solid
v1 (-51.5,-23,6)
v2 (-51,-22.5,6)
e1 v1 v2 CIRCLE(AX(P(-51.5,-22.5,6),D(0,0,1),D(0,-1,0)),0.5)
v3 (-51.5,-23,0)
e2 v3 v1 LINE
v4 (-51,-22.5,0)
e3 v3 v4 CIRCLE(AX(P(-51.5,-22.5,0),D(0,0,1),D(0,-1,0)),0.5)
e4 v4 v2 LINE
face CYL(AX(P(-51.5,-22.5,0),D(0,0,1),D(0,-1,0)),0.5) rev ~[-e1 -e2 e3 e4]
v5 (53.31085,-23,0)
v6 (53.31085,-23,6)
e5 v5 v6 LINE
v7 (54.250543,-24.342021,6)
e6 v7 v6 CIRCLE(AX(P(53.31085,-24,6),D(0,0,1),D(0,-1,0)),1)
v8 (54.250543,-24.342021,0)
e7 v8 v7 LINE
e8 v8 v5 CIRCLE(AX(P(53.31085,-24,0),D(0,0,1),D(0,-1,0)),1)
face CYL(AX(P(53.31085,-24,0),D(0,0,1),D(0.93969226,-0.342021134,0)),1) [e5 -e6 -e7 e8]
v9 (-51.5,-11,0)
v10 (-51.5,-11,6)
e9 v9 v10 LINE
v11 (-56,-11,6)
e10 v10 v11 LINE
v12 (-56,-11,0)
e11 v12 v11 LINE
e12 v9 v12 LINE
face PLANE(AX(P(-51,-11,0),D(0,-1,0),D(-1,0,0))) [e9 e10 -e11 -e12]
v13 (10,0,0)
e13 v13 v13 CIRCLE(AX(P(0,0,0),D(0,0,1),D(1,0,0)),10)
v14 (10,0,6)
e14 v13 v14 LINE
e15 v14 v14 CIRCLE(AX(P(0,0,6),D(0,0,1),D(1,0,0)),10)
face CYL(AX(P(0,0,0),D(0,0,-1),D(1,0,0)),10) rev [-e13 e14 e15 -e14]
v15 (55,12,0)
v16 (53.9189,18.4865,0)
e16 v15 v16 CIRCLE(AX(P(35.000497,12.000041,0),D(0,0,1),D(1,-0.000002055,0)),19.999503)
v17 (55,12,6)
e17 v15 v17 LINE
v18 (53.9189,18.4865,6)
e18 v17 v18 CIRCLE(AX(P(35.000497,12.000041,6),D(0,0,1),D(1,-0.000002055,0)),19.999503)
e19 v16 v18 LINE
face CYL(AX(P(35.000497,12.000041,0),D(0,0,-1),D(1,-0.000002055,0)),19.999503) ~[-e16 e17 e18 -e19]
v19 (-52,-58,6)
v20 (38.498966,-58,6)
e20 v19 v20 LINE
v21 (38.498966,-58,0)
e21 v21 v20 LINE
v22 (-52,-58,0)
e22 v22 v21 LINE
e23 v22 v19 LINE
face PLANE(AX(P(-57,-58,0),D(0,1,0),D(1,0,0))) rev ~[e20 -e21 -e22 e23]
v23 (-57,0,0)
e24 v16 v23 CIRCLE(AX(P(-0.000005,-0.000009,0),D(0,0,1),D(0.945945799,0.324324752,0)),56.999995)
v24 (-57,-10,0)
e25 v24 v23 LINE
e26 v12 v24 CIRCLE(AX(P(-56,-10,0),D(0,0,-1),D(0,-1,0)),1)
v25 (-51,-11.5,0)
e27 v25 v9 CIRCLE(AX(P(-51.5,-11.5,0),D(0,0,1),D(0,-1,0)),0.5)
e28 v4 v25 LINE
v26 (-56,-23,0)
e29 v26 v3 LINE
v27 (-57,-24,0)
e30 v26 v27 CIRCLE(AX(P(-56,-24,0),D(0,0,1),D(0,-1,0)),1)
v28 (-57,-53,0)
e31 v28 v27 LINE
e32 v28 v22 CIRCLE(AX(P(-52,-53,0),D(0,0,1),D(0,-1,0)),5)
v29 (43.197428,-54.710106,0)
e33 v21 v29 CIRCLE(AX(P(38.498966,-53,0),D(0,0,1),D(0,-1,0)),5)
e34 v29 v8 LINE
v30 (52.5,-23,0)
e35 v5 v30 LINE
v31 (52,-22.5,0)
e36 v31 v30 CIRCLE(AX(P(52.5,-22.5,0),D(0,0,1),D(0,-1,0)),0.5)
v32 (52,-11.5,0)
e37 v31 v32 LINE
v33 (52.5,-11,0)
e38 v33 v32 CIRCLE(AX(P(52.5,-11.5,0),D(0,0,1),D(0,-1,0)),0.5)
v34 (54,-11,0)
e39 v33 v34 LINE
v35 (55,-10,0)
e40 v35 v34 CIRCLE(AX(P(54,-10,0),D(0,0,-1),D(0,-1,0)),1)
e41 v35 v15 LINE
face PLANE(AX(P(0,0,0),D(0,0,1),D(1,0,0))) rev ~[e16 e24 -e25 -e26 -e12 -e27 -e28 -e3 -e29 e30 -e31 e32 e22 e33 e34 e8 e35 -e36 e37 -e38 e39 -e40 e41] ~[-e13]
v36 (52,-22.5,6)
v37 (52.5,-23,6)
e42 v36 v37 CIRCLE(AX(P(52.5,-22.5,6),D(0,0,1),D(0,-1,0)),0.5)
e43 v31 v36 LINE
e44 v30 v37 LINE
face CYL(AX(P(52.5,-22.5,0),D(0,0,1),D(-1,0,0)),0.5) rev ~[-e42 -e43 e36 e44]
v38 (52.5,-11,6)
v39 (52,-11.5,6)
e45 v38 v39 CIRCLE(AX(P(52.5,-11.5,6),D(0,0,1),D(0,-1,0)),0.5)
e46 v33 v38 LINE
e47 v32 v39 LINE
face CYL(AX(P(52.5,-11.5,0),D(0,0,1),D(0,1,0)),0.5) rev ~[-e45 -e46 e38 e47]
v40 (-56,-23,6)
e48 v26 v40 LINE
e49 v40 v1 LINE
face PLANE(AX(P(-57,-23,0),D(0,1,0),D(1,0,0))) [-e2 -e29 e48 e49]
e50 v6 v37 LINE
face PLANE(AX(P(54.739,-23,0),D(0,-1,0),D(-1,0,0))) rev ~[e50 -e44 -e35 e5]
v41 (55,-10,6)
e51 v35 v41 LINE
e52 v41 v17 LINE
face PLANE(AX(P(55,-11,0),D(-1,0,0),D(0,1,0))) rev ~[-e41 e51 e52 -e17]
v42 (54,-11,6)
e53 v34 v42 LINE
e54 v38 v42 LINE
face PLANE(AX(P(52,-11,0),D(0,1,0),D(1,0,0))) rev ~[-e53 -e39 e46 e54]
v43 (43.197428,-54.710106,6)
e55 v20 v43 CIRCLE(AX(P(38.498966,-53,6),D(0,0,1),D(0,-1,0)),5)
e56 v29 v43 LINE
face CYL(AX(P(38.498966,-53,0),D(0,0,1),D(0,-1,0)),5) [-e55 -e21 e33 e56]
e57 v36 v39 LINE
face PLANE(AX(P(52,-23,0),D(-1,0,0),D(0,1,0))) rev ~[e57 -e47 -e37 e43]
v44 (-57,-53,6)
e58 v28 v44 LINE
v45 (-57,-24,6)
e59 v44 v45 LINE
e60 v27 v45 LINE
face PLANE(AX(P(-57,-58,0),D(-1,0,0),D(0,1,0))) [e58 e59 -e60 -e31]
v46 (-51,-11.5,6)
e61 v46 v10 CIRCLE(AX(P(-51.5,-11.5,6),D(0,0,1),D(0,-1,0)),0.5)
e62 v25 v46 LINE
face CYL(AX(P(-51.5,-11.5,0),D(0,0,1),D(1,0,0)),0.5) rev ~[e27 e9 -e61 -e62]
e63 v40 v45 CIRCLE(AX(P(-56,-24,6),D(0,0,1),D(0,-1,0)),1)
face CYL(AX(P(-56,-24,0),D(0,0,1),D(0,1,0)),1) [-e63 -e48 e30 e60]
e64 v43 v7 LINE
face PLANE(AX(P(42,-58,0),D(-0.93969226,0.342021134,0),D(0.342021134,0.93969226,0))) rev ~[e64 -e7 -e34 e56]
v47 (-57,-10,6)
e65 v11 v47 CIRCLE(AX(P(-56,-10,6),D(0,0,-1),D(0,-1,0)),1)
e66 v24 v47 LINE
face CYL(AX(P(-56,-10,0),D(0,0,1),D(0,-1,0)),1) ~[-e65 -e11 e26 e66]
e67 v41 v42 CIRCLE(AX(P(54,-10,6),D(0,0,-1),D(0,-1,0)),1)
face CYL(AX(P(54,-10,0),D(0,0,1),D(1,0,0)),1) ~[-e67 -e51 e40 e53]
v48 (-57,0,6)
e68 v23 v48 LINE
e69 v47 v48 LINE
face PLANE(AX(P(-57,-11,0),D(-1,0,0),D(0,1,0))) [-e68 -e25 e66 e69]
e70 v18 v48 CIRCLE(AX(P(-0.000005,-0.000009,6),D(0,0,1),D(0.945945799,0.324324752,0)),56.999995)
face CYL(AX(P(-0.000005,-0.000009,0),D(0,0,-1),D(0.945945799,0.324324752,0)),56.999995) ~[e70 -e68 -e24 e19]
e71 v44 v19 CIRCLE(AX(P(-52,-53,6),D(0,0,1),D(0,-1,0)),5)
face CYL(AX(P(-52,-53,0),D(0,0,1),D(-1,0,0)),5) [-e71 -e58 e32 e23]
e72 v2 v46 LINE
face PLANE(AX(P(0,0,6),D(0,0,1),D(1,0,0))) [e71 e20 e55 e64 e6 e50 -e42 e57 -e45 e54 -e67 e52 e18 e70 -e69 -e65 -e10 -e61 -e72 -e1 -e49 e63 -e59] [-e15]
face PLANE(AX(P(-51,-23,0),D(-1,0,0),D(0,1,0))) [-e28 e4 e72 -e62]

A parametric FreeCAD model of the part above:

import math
import FreeCAD as App
import Part
import Sketcher
Q = App.Units.Quantity


def edges_at(feature, points):
    """Names of the edges that pass closest to the given points."""
    edges = feature.Shape.Edges
    near = lambda p: min(range(len(edges)), key=lambda i: edges[i].distToShape(Part.Vertex(*p))[0])
    return sorted({f"Edge{near(p) + 1}" for p in points})

doc = App.newDocument("Part")
body = doc.addObject("PartDesign::Body", "Body")

sketch1 = body.newObject("Sketcher::SketchObject", "Sketch")
sketch1.AttachmentSupport = (doc.getObject("XY_Plane"), [""])
sketch1.MapMode = "FlatFace"
sketch1.addGeometry([
    Part.LineSegment(App.Vector(-57, -23, 0), App.Vector(-57, -58, 0)),
    Part.LineSegment(App.Vector(-57, -58, 0), App.Vector(42, -58, 0)),
    Part.LineSegment(App.Vector(42, -58, 0), App.Vector(54.7, -23, 0)),
    Part.LineSegment(App.Vector(54.7, -23, 0), App.Vector(52, -23, 0)),
    Part.LineSegment(App.Vector(52, -23, 0), App.Vector(52, -11, 0)),
    Part.LineSegment(App.Vector(52, -11, 0), App.Vector(55, -11, 0)),
    Part.LineSegment(App.Vector(55, -11, 0), App.Vector(55, 12, 0)),
    Part.ArcOfCircle(Part.Circle(App.Vector(35, 12, 0), App.Vector(0, 0, 1), 20), math.radians(0), math.radians(18.92)),
    Part.ArcOfCircle(Part.Circle(App.Vector(0, 0, 0), App.Vector(0, 0, 1), 57), math.radians(19), math.radians(180)),
    Part.LineSegment(App.Vector(-57, 0, 0), App.Vector(-57, -11, 0)),
    Part.LineSegment(App.Vector(-57, -11, 0), App.Vector(-51, -11, 0)),
    Part.LineSegment(App.Vector(-51, -11, 0), App.Vector(-51, -23, 0)),
    Part.LineSegment(App.Vector(-51, -23, 0), App.Vector(-57, -23, 0)),
    Part.Circle(App.Vector(0, 0, 0), App.Vector(0, 0, 1), 10),
], False)
sketch1.addConstraint([
    Sketcher.Constraint("Coincident", 0, 2, 1, 1),
    Sketcher.Constraint("Coincident", 1, 2, 2, 1),
    Sketcher.Constraint("Coincident", 2, 2, 3, 1),
    Sketcher.Constraint("Coincident", 3, 2, 4, 1),
    Sketcher.Constraint("Coincident", 4, 2, 5, 1),
    Sketcher.Constraint("Coincident", 5, 2, 6, 1),
    Sketcher.Constraint("Tangent", 6, 2, 7, 1),
    Sketcher.Constraint("Tangent", 7, 2, 8, 1),
    Sketcher.Constraint("Tangent", 8, 2, 9, 1),
    Sketcher.Constraint("Coincident", 9, 2, 10, 1),
    Sketcher.Constraint("Coincident", 10, 2, 11, 1),
    Sketcher.Constraint("Coincident", 11, 2, 12, 1),
    Sketcher.Constraint("Coincident", 12, 2, 0, 1),
    Sketcher.Constraint("Vertical", 0),
    Sketcher.Constraint("Horizontal", 1),
    Sketcher.Constraint("Horizontal", 3),
    Sketcher.Constraint("Vertical", 4),
    Sketcher.Constraint("Horizontal", 5),
    Sketcher.Constraint("Vertical", 6),
    Sketcher.Constraint("Vertical", 9),
    Sketcher.Constraint("Horizontal", 10),
    Sketcher.Constraint("Vertical", 11),
    Sketcher.Constraint("Horizontal", 12),
    Sketcher.Constraint("Coincident", 8, 3, -1, 1),
    Sketcher.Constraint("Coincident", 13, 3, -1, 1),
    Sketcher.Constraint("Horizontal", 5, 2, 9, 2),
    Sketcher.Constraint("Horizontal", 3, 2, 11, 2),
    Sketcher.Constraint("Vertical", 0, 2, 8, 2),
    Sketcher.Constraint("Diameter", 13, 20.0),
    Sketcher.Constraint("Radius", 7, 20.0),
    Sketcher.Constraint("Radius", 8, 57.0),
    Sketcher.Constraint("DistanceX", 1, 1, 1, 2, 99.0),
    Sketcher.Constraint("DistanceX", 5, 1, 5, 2, 3.0),
    Sketcher.Constraint("DistanceX", 10, 1, 10, 2, 6.0),
    Sketcher.Constraint("DistanceY", 4, 1, 4, 2, 12.0),
    Sketcher.Constraint("DistanceY", -1, 1, 7, 3, 12.0),
    Sketcher.Constraint("DistanceY", 0, 2, -1, 1, 58.0),
    Sketcher.Constraint("DistanceY", 1, 2, 4, 2, 47.0),
    Sketcher.Constraint("Angle", 2, Q("70 deg")),
])
pad1 = body.newObject("PartDesign::Pad", "Pad")
pad1.Profile = sketch1
pad1.Length = 6
doc.recompute()

fillet = body.newObject("PartDesign::Fillet", "Fillet")
fillet.Base = (pad1, edges_at(pad1, [
    (52, -23, 3),
    (52, -11, 3),
    (-51, -11, 3),
    (-51, -23, 3),
]))
fillet.Radius = 0.5
doc.recompute()

fillet2 = body.newObject("PartDesign::Fillet", "Fillet001")
fillet2.Base = (fillet, edges_at(fillet, [
    (-57, -11, 3),
    (-57, -23, 3),
    (55, -11, 3),
    (54.739, -23, 3),
]))
fillet2.Radius = 1
doc.recompute()

fillet3 = body.newObject("PartDesign::Fillet", "Fillet002")
fillet3.Base = (fillet2, edges_at(fillet2, [(42, -58, 3), (-57, -58, 3)]))
fillet3.Radius = 5

doc.recompute()
